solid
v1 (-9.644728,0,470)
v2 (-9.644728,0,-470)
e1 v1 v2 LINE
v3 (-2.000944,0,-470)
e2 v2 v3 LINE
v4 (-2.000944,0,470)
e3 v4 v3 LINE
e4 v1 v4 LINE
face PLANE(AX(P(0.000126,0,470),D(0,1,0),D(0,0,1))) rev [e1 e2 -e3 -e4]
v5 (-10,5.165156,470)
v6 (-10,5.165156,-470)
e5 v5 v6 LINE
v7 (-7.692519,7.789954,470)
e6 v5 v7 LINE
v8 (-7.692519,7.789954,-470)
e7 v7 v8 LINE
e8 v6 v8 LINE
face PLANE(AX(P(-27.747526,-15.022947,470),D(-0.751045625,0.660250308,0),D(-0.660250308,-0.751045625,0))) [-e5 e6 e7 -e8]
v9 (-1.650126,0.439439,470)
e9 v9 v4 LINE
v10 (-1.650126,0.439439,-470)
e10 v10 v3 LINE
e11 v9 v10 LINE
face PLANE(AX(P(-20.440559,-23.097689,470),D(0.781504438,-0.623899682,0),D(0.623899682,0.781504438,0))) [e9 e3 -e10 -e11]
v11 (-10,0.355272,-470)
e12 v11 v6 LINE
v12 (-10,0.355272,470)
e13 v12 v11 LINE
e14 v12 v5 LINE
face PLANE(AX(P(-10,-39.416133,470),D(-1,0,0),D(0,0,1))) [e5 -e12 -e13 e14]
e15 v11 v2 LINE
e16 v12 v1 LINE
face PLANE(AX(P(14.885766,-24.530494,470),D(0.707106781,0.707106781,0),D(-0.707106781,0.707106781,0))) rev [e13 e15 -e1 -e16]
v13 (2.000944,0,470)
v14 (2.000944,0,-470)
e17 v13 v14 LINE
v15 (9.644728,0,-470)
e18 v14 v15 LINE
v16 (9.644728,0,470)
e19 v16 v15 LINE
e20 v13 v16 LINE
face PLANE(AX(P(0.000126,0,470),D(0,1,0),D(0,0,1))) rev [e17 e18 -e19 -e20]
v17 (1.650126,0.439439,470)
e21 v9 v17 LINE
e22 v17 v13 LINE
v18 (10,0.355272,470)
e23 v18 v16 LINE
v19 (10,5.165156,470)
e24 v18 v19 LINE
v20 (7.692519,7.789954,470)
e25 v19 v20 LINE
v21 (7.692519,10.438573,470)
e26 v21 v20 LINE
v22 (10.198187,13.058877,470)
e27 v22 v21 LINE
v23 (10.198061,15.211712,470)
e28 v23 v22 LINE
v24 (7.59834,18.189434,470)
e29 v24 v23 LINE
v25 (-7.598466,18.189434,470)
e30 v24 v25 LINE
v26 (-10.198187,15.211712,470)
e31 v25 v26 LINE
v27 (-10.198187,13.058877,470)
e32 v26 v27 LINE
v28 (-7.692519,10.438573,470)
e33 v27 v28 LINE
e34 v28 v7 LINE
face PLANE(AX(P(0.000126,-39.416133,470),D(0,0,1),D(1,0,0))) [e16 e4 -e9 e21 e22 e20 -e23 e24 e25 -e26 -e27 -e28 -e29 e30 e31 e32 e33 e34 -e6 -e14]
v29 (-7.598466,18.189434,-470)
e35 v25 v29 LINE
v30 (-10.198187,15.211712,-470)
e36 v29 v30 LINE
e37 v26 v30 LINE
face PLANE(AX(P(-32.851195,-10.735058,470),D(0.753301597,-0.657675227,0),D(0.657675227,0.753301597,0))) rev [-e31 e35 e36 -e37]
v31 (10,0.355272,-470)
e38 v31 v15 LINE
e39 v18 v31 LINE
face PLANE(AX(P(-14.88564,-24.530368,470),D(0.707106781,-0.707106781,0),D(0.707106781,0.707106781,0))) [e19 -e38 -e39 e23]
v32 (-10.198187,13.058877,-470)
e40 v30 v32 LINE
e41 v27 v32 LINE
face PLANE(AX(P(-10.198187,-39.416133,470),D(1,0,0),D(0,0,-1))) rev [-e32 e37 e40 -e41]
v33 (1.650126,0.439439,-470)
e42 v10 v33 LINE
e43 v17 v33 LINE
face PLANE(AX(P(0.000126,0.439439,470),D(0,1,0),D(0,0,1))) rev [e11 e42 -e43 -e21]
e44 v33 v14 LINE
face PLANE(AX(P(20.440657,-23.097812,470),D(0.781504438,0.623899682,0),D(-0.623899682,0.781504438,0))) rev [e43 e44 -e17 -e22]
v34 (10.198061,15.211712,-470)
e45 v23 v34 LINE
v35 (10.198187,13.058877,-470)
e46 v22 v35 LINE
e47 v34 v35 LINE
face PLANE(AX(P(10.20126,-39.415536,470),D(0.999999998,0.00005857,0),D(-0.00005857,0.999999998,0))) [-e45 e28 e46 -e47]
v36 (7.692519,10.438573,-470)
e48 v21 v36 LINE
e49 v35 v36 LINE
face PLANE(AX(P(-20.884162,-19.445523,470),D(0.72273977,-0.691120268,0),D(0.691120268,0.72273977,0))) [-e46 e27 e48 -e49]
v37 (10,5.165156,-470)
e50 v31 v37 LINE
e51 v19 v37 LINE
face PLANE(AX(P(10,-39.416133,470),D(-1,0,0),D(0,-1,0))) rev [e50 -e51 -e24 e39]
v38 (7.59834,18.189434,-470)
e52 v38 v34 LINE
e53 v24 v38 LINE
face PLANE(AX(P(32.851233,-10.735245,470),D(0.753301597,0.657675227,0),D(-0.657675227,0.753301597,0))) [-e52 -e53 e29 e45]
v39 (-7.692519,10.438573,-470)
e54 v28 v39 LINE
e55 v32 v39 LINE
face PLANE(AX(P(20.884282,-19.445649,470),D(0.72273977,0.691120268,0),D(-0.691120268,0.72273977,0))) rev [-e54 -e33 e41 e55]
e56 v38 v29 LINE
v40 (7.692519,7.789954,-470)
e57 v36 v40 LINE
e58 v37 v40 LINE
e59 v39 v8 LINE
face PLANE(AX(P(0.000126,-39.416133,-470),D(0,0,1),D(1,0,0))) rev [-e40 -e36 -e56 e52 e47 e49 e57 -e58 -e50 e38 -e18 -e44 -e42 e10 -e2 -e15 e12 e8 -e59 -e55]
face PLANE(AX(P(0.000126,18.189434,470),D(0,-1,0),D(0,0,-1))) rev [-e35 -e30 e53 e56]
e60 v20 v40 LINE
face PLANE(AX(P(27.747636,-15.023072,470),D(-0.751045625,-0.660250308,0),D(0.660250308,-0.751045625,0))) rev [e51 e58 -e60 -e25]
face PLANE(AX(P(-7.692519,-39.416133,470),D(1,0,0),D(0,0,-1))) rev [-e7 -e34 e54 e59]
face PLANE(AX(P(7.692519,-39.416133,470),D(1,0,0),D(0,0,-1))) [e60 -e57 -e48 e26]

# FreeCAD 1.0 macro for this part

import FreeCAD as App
import Part
import Sketcher
from FreeCAD import Vector
Q = App.Units.Quantity


def add_polygon(sketch, points):
    """Adds a closed chain of lines whose ends are joined by coincident constraints."""
    first, n = sketch.GeometryCount, len(points)
    for a, b in zip(points, points[1:] + points[:1]):
        sketch.addGeometry(Part.LineSegment(App.Vector(*a, 0), App.Vector(*b, 0)), False)
    for i in range(n):
        sketch.addConstraint(Sketcher.Constraint("Coincident", first + i, 2, first + (i + 1) % n, 1))

doc = App.newDocument("Part")
body = doc.addObject("PartDesign::Body", "Body")

# Sketch on XY plane
sketch1 = body.newObject("Sketcher::SketchObject", "Sketch")
sketch1.AttachmentSupport = (doc.getObject("XY_Plane"), [""])
sketch1.MapMode = "FlatFace"
add_polygon(sketch1, [(10.2, 15.2), (7.6, 18.2), (-7.6, 18.2), (-10.2, 15.2), (-10.2, 13.1), (-7.7, 10.4), (-7.7, 7.8), (-10, 5.2), (-10, 0.4), (-9.6, 0), (-2, 0), (-1.7, 0.4), (1.7, 0.4), (2, 0), (9.6, 0), (10, 0.4), (10, 5.2), (7.7, 7.8), (7.7, 10.4), (10.2, 13.1)])  # lines 0-19
sketch1.addConstraint(Sketcher.Constraint("Horizontal", 1))
sketch1.addConstraint(Sketcher.Constraint("Vertical", 3))
sketch1.addConstraint(Sketcher.Constraint("Vertical", 5))
sketch1.addConstraint(Sketcher.Constraint("Vertical", 7))
sketch1.addConstraint(Sketcher.Constraint("Horizontal", 9))
sketch1.addConstraint(Sketcher.Constraint("Horizontal", 11))
sketch1.addConstraint(Sketcher.Constraint("Horizontal", 13))
sketch1.addConstraint(Sketcher.Constraint("Vertical", 15))
sketch1.addConstraint(Sketcher.Constraint("Vertical", 17))
sketch1.addConstraint(Sketcher.Constraint("Symmetric", 9, 2, 12, 2, -1, 1))
sketch1.addConstraint(Sketcher.Constraint("Symmetric", 8, 2, 13, 2, -2))
sketch1.addConstraint(Sketcher.Constraint("Symmetric", 7, 2, 14, 2, -2))
sketch1.addConstraint(Sketcher.Constraint("Symmetric", 5, 2, 16, 2, -2))
sketch1.addConstraint(Sketcher.Constraint("Symmetric", 3, 2, 18, 2, -2))
sketch1.addConstraint(Sketcher.Constraint("Perpendicular", 8, 14))
sketch1.addConstraint(Sketcher.Constraint("Horizontal", 6, 2, 15, 2))
sketch1.addConstraint(Sketcher.Constraint("Horizontal", 4, 2, 17, 2))
sketch1.addConstraint(Sketcher.Constraint("Horizontal", 2, 2, 19, 2))
sketch1.addConstraint(Sketcher.Constraint("Equal", 0, 2))
sketch1.addConstraint(Sketcher.Constraint("Equal", 10, 12))
sketch1.addConstraint(Sketcher.Constraint("DistanceX", 6, 2, -1, 1, Q("10 mm")))
sketch1.addConstraint(Sketcher.Constraint("Distance", 10, Q("0.562299 mm")))
sketch1.addConstraint(Sketcher.Constraint("DistanceX", 11, 1, 11, 2, Q("3.300252 mm")))
sketch1.addConstraint(Sketcher.Constraint("DistanceY", 5, 2, 5, 1, Q("2.648619 mm")))
sketch1.addConstraint(Sketcher.Constraint("DistanceY", 7, 2, 4, 2, Q("10.083301 mm")))
sketch1.addConstraint(Sketcher.Constraint("DistanceX", 8, 2, 10, 2, Q("7.994602 mm")))
sketch1.addConstraint(Sketcher.Constraint("DistanceX", 1, 2, 1, 1, Q("15.196806 mm")))
sketch1.addConstraint(Sketcher.Constraint("DistanceX", 9, 1, 9, 2, Q("7.643784 mm")))
sketch1.addConstraint(Sketcher.Constraint("DistanceY", 3, 2, 3, 1, Q("2.152835 mm")))
sketch1.addConstraint(Sketcher.Constraint("DistanceY", 7, 2, 7, 1, Q("4.809884 mm")))
sketch1.addConstraint(Sketcher.Constraint("DistanceX", -1, 1, 0, 2, Q("7.59834 mm")))
sketch1.addConstraint(Sketcher.Constraint("DistanceX", 4, 2, -1, 1, Q("7.692519 mm")))
sketch1.addConstraint(Sketcher.Constraint("DistanceX", -1, 1, 19, 2, Q("10.198061 mm")))
sketch1.addConstraint(Sketcher.Constraint("DistanceY", 2, 2, 1, 2, Q("2.977721 mm")))
sketch1.addConstraint(Sketcher.Constraint("DistanceY", 4, 2, 2, 2, Q("4.773139 mm")))
pad1 = body.newObject("PartDesign::Pad", "Pad")
pad1.Profile = sketch1
pad1.Length = 940
pad1.Midplane = True

doc.recompute()
